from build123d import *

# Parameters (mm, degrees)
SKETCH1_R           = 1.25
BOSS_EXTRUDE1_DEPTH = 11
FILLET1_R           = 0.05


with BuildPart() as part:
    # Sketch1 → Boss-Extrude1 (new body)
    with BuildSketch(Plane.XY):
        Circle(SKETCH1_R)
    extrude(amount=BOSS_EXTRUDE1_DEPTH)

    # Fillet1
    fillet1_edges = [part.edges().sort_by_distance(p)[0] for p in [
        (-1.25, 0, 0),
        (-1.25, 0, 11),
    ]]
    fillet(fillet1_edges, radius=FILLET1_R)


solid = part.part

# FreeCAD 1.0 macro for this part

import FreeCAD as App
import Part
import Sketcher

V = App.Vector


def edges_at(feature, points):
    """Names of the edges that pass closest to the given points."""
    edges = feature.Shape.Edges
    near = lambda p: min(range(len(edges)), key=lambda i: edges[i].distToShape(Part.Vertex(*p))[0])
    return sorted({f"Edge{near(p) + 1}" for p in points})

doc = App.newDocument("Part")
body = doc.addObject("PartDesign::Body", "Body")

# Sketch on XY plane
sketch1 = body.newObject("Sketcher::SketchObject", "Sketch")
sketch1.AttachmentSupport = (doc.getObject("XY_Plane"), [""])
sketch1.MapMode = "FlatFace"
sketch1.addGeometry(Part.Circle(V(0, 0, 0), V(0, 0, 1), 1.25), False)
sketch1.addConstraint([
    Sketcher.Constraint("Coincident", 0, 3, -1, 1),
    Sketcher.Constraint("Diameter", 0, 2.5),
])
pad1 = body.newObject("PartDesign::Pad", "Pad")
pad1.Profile = sketch1
pad1.Length = 11
doc.recompute()

fillet = body.newObject("PartDesign::Fillet", "Fillet")
fillet.Base = (pad1, edges_at(pad1, [(-1.25, 0, 0), (-1.25, 0, 11)]))
fillet.Radius = 0.05

doc.recompute()
